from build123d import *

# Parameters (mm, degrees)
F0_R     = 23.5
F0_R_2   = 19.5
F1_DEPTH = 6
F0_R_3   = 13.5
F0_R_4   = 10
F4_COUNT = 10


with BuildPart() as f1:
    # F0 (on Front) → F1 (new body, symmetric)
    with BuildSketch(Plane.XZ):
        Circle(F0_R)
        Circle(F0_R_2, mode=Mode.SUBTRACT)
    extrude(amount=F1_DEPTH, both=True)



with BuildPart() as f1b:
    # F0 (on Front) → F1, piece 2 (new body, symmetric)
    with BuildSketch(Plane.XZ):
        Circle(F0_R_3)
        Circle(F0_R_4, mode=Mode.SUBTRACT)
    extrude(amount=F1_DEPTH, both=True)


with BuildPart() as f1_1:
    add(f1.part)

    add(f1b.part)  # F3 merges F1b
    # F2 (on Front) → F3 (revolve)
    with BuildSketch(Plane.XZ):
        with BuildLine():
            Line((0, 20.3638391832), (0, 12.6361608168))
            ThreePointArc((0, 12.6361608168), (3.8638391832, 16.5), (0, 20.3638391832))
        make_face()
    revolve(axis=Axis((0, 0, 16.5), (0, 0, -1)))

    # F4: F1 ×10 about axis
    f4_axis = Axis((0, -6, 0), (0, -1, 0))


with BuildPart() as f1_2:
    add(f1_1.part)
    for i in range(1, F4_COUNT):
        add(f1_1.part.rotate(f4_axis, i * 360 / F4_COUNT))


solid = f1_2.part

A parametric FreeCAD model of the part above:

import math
import FreeCAD as App
import Part
import Sketcher
from FreeCAD import Vector

doc = App.newDocument("Part")
body = doc.addObject("PartDesign::Body", "Body")

sketch1 = body.newObject("Sketcher::SketchObject", "Sketch")
sketch1.AttachmentSupport = (doc.getObject("XZ_Plane"), [""])
sketch1.MapMode = "FlatFace"
sketch1.addGeometry([
    Part.Circle(Vector(0, 0, 0), Vector(0, 0, 1), 24),
    Part.Circle(Vector(0, 0, 0), Vector(0, 0, 1), 20),
], False)
sketch1.addConstraint([
    Sketcher.Constraint("Coincident", 0, 3, -1, 1),
    Sketcher.Constraint("Coincident", 1, 3, -1, 1),
    Sketcher.Constraint("Diameter", 0, 47.0),
    Sketcher.Constraint("Diameter", 1, 39.0),
])
pad1 = body.newObject("PartDesign::Pad", "Pad")
pad1.Profile = sketch1
pad1.Length = 12
pad1.Midplane = True
body2 = doc.addObject("PartDesign::Body", "Body001")

sketch2 = body2.newObject("Sketcher::SketchObject", "Sketch001")
sketch2.AttachmentSupport = (doc.getObject("XZ_Plane001"), [""])
sketch2.MapMode = "FlatFace"
sketch2.addGeometry([
    Part.Circle(Vector(0, 0, 0), Vector(0, 0, 1), 14),
    Part.Circle(Vector(0, 0, 0), Vector(0, 0, 1), 10),
], False)
sketch2.addConstraint([
    Sketcher.Constraint("Coincident", 0, 3, -1, 1),
    Sketcher.Constraint("Coincident", 1, 3, -1, 1),
    Sketcher.Constraint("Diameter", 0, 27.0),
    Sketcher.Constraint("Diameter", 1, 20.0),
])
pad2 = body2.newObject("PartDesign::Pad", "Pad001")
pad2.Profile = sketch2
pad2.Length = 12
pad2.Midplane = True
body.AllowCompound = True
doc.recompute()

boolean = body.newObject("PartDesign::Boolean", "Boolean")
boolean.Type = "Fuse"
boolean.addObjects([body2])

sketch3 = body.newObject("Sketcher::SketchObject", "Sketch002")
sketch3.AttachmentSupport = (doc.getObject("XZ_Plane"), [""])
sketch3.MapMode = "FlatFace"
sketch3.addGeometry([
    Part.LineSegment(Vector(0, 20.4, 0), Vector(0, 12.6, 0)),
    Part.ArcOfCircle(Part.Circle(Vector(0, 16.5, 0), Vector(0, 0, 1), 3.9), math.radians(-90), math.radians(90)),
], False)
sketch3.addConstraint([
    Sketcher.Constraint("Coincident", 0, 1, 1, 2),
    Sketcher.Constraint("Coincident", 1, 1, 0, 2),
    Sketcher.Constraint("Vertical", 0),
    Sketcher.Constraint("PointOnObject", 1, 3, -2),
    Sketcher.Constraint("PointOnObject", 0, 1, -2),
    Sketcher.Constraint("DistanceY", -1, 1, 1, 3, 16.5),
    Sketcher.Constraint("Radius", 1, 3.863839),
])
revolution = body.newObject("PartDesign::Revolution", "Revolution")
revolution.Profile = sketch3
revolution.ReferenceAxis = (sketch3, ["V_Axis"])
revolution.Angle = 360
body3 = doc.addObject("PartDesign::Body", "Body002")
doc.recompute()

body3.BaseFeature = body
doc.recompute()

body4 = doc.addObject("PartDesign::Body", "Body003")
body4.BaseFeature = body
body4.Placement = App.Placement(Vector(0, 0, 0), App.Rotation(Vector(0, -1, 0), 36))
boolean2 = body3.newObject("PartDesign::Boolean", "Boolean001")
boolean2.Type = "Fuse"
boolean2.addObjects([body4])
doc.recompute()

body5 = doc.addObject("PartDesign::Body", "Body004")
body5.BaseFeature = body
body5.Placement = App.Placement(Vector(0, 0, 0), App.Rotation(Vector(0, -1, 0), 72))
boolean3 = body3.newObject("PartDesign::Boolean", "Boolean002")
boolean3.Type = "Fuse"
boolean3.addObjects([body5])
doc.recompute()

body6 = doc.addObject("PartDesign::Body", "Body005")
body6.BaseFeature = body
body6.Placement = App.Placement(Vector(0, 0, 0), App.Rotation(Vector(0, -1, 0), 108))
boolean4 = body3.newObject("PartDesign::Boolean", "Boolean003")
boolean4.Type = "Fuse"
boolean4.addObjects([body6])
doc.recompute()

body7 = doc.addObject("PartDesign::Body", "Body006")
body7.BaseFeature = body
body7.Placement = App.Placement(Vector(0, 0, 0), App.Rotation(Vector(0, -1, 0), 144))
boolean5 = body3.newObject("PartDesign::Boolean", "Boolean004")
boolean5.Type = "Fuse"
boolean5.addObjects([body7])
doc.recompute()

body8 = doc.addObject("PartDesign::Body", "Body007")
body8.BaseFeature = body
body8.Placement = App.Placement(Vector(0, 0, 0), App.Rotation(Vector(0, -1, 0), 180))
boolean6 = body3.newObject("PartDesign::Boolean", "Boolean005")
boolean6.Type = "Fuse"
boolean6.addObjects([body8])
doc.recompute()

body9 = doc.addObject("PartDesign::Body", "Body008")
body9.BaseFeature = body
body9.Placement = App.Placement(Vector(0, 0, 0), App.Rotation(Vector(0, -1, 0), 216))
boolean7 = body3.newObject("PartDesign::Boolean", "Boolean006")
boolean7.Type = "Fuse"
boolean7.addObjects([body9])
doc.recompute()

body10 = doc.addObject("PartDesign::Body", "Body009")
body10.BaseFeature = body
body10.Placement = App.Placement(Vector(0, 0, 0), App.Rotation(Vector(0, -1, 0), 252))
boolean8 = body3.newObject("PartDesign::Boolean", "Boolean007")
boolean8.Type = "Fuse"
boolean8.addObjects([body10])
doc.recompute()

body11 = doc.addObject("PartDesign::Body", "Body010")
body11.BaseFeature = body
body11.Placement = App.Placement(Vector(0, 0, 0), App.Rotation(Vector(0, -1, 0), 288))
boolean9 = body3.newObject("PartDesign::Boolean", "Boolean008")
boolean9.Type = "Fuse"
boolean9.addObjects([body11])
doc.recompute()

body.Placement = App.Placement(Vector(0, 0, 0), App.Rotation(Vector(0, -1, 0), 324))
boolean10 = body3.newObject("PartDesign::Boolean", "Boolean009")
boolean10.Type = "Fuse"
boolean10.addObjects([body])

doc.recompute()
